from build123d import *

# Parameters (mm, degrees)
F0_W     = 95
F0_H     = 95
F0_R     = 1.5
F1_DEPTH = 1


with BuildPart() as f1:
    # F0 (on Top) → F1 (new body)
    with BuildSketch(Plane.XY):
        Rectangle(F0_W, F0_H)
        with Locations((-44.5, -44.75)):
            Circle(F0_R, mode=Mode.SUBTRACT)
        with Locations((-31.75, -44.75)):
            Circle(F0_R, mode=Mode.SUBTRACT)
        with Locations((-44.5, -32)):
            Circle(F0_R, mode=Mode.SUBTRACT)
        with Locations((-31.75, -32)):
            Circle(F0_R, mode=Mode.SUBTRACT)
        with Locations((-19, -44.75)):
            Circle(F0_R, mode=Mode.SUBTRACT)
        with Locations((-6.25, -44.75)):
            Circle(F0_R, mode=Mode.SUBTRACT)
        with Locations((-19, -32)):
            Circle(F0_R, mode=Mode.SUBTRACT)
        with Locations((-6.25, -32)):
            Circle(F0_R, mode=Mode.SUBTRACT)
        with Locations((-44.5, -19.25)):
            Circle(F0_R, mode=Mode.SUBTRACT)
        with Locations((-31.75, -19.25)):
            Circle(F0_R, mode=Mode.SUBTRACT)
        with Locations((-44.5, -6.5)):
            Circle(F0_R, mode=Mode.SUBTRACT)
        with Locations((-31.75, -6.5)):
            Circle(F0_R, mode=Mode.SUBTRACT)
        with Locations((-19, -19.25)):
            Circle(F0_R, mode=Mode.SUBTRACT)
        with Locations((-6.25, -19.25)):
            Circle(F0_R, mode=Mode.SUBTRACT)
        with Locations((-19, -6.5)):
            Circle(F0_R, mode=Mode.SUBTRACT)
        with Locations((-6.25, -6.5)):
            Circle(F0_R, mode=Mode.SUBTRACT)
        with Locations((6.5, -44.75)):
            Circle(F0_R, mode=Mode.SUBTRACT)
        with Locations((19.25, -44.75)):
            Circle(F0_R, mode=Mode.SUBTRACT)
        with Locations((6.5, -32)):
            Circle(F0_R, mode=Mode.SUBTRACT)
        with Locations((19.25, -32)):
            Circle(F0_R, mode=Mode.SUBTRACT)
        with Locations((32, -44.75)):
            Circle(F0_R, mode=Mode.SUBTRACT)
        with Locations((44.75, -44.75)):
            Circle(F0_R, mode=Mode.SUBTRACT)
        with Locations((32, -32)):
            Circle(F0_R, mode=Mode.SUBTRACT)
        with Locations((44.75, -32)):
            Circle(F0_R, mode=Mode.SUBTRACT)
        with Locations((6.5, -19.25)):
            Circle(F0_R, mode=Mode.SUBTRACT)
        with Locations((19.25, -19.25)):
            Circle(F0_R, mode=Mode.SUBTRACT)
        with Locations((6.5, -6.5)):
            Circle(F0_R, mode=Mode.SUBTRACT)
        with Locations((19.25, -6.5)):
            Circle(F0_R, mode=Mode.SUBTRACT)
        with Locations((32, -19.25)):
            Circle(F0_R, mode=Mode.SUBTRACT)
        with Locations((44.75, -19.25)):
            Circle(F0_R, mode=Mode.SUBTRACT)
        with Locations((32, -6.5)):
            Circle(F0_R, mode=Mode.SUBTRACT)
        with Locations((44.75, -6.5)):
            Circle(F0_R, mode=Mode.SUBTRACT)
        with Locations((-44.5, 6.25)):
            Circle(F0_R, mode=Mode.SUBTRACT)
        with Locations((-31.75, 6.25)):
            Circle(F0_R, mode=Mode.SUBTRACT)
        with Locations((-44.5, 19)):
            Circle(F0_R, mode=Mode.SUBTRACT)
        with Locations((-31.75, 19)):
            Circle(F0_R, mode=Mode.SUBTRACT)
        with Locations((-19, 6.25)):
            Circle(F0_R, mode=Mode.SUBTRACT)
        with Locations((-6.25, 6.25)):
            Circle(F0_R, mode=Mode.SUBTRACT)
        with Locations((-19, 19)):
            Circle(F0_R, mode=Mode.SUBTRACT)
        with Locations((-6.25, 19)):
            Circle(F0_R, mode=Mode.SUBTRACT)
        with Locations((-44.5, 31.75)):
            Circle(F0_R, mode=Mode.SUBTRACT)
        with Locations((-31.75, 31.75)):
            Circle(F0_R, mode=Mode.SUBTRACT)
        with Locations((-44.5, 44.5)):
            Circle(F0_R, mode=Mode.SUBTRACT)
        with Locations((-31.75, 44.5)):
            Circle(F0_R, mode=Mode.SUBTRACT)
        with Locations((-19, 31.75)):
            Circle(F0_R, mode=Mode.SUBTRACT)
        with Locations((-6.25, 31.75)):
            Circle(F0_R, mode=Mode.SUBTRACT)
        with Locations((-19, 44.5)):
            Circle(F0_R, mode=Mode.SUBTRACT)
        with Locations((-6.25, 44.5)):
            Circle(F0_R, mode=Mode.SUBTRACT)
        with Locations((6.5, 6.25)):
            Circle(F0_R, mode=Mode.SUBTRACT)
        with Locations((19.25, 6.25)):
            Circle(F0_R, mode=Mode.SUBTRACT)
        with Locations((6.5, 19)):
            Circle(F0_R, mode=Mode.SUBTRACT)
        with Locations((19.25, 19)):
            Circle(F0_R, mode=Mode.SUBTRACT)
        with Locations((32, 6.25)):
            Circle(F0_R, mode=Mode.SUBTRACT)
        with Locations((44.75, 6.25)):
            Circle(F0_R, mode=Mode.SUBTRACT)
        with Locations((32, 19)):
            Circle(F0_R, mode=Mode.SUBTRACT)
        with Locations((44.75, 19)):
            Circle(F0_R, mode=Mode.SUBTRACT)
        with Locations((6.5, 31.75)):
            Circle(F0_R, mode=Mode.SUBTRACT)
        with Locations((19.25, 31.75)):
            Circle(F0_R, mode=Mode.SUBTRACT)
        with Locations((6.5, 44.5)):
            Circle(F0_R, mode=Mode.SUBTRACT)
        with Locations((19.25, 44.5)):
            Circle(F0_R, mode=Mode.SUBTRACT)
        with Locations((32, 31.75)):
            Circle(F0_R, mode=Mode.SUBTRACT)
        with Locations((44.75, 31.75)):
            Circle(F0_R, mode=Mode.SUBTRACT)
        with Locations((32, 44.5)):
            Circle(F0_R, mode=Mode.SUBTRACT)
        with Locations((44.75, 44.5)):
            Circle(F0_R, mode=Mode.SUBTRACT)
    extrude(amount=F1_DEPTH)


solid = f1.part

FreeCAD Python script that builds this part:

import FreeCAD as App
import Part
import Sketcher
Q = App.Units.Quantity


def add_polygon(sketch, points):
    """Adds a closed chain of lines whose ends are joined by coincident constraints."""
    first, n = sketch.GeometryCount, len(points)
    for a, b in zip(points, points[1:] + points[:1]):
        sketch.addGeometry(Part.LineSegment(App.Vector(*a, 0), App.Vector(*b, 0)), False)
    for i in range(n):
        sketch.addConstraint(Sketcher.Constraint("Coincident", first + i, 2, first + (i + 1) % n, 1))

doc = App.newDocument("Part")
params = doc.addObject("Spreadsheet::Sheet", "Params")
for row, (alias, value) in enumerate([
    ("sketch1_diameter", "3 mm"),
    ("sketch1_width", "95 mm"),
    ("pad1_length", "1 mm"),
], start=1):
    params.set(f"A{row}", alias)
    params.set(f"B{row}", "=" + value)
    params.setAlias(f"B{row}", alias)

body = doc.addObject("PartDesign::Body", "Body")

sketch1 = doc.addObject("Sketcher::SketchObject", "Sketch")
body.addObject(sketch1)
sketch1.AttachmentSupport = (doc.XY_Plane, [""])
sketch1.MapMode = "FlatFace"
add_polygon(sketch1, [(-47.5, 47.5), (-47.5, -47.5), (47.5, -47.5), (47.5, 47.5)])
sketch1.addGeometry(Part.Circle(App.Vector(-44.5, -44.8, 0), App.Vector(0, 0, 1), 1.5), False)
sketch1.addGeometry(Part.Circle(App.Vector(-31.8, -44.8, 0), App.Vector(0, 0, 1), 1.5), False)
sketch1.addGeometry(Part.Circle(App.Vector(-44.5, -32, 0), App.Vector(0, 0, 1), 1.5), False)
sketch1.addGeometry(Part.Circle(App.Vector(-31.8, -32, 0), App.Vector(0, 0, 1), 1.5), False)
sketch1.addGeometry(Part.Circle(App.Vector(-19, -44.8, 0), App.Vector(0, 0, 1), 1.5), False)
sketch1.addGeometry(Part.Circle(App.Vector(-6.2, -44.8, 0), App.Vector(0, 0, 1), 1.5), False)
sketch1.addGeometry(Part.Circle(App.Vector(-19, -32, 0), App.Vector(0, 0, 1), 1.5), False)
sketch1.addGeometry(Part.Circle(App.Vector(-6.2, -32, 0), App.Vector(0, 0, 1), 1.5), False)
sketch1.addGeometry(Part.Circle(App.Vector(-44.5, -19.2, 0), App.Vector(0, 0, 1), 1.5), False)
sketch1.addGeometry(Part.Circle(App.Vector(-31.8, -19.2, 0), App.Vector(0, 0, 1), 1.5), False)
sketch1.addGeometry(Part.Circle(App.Vector(-44.5, -6.5, 0), App.Vector(0, 0, 1), 1.5), False)
sketch1.addGeometry(Part.Circle(App.Vector(-31.8, -6.5, 0), App.Vector(0, 0, 1), 1.5), False)
sketch1.addGeometry(Part.Circle(App.Vector(-19, -19.2, 0), App.Vector(0, 0, 1), 1.5), False)
sketch1.addGeometry(Part.Circle(App.Vector(-6.2, -19.2, 0), App.Vector(0, 0, 1), 1.5), False)
sketch1.addGeometry(Part.Circle(App.Vector(-19, -6.5, 0), App.Vector(0, 0, 1), 1.5), False)
sketch1.addGeometry(Part.Circle(App.Vector(-6.2, -6.5, 0), App.Vector(0, 0, 1), 1.5), False)
sketch1.addGeometry(Part.Circle(App.Vector(6.5, -44.8, 0), App.Vector(0, 0, 1), 1.5), False)
sketch1.addGeometry(Part.Circle(App.Vector(19.2, -44.8, 0), App.Vector(0, 0, 1), 1.5), False)
sketch1.addGeometry(Part.Circle(App.Vector(6.5, -32, 0), App.Vector(0, 0, 1), 1.5), False)
sketch1.addGeometry(Part.Circle(App.Vector(19.2, -32, 0), App.Vector(0, 0, 1), 1.5), False)
sketch1.addGeometry(Part.Circle(App.Vector(32, -44.8, 0), App.Vector(0, 0, 1), 1.5), False)
sketch1.addGeometry(Part.Circle(App.Vector(44.8, -44.8, 0), App.Vector(0, 0, 1), 1.5), False)
sketch1.addGeometry(Part.Circle(App.Vector(32, -32, 0), App.Vector(0, 0, 1), 1.5), False)
sketch1.addGeometry(Part.Circle(App.Vector(44.8, -32, 0), App.Vector(0, 0, 1), 1.5), False)
sketch1.addGeometry(Part.Circle(App.Vector(6.5, -19.2, 0), App.Vector(0, 0, 1), 1.5), False)
sketch1.addGeometry(Part.Circle(App.Vector(19.2, -19.2, 0), App.Vector(0, 0, 1), 1.5), False)
sketch1.addGeometry(Part.Circle(App.Vector(6.5, -6.5, 0), App.Vector(0, 0, 1), 1.5), False)
sketch1.addGeometry(Part.Circle(App.Vector(19.2, -6.5, 0), App.Vector(0, 0, 1), 1.5), False)
sketch1.addGeometry(Part.Circle(App.Vector(32, -19.2, 0), App.Vector(0, 0, 1), 1.5), False)
sketch1.addGeometry(Part.Circle(App.Vector(44.8, -19.2, 0), App.Vector(0, 0, 1), 1.5), False)
sketch1.addGeometry(Part.Circle(App.Vector(32, -6.5, 0), App.Vector(0, 0, 1), 1.5), False)
sketch1.addGeometry(Part.Circle(App.Vector(44.8, -6.5, 0), App.Vector(0, 0, 1), 1.5), False)
sketch1.addGeometry(Part.Circle(App.Vector(-44.5, 6.2, 0), App.Vector(0, 0, 1), 1.5), False)
sketch1.addGeometry(Part.Circle(App.Vector(-31.8, 6.2, 0), App.Vector(0, 0, 1), 1.5), False)
sketch1.addGeometry(Part.Circle(App.Vector(-44.5, 19, 0), App.Vector(0, 0, 1), 1.5), False)
sketch1.addGeometry(Part.Circle(App.Vector(-31.8, 19, 0), App.Vector(0, 0, 1), 1.5), False)
sketch1.addGeometry(Part.Circle(App.Vector(-19, 6.2, 0), App.Vector(0, 0, 1), 1.5), False)
sketch1.addGeometry(Part.Circle(App.Vector(-6.2, 6.2, 0), App.Vector(0, 0, 1), 1.5), False)
sketch1.addGeometry(Part.Circle(App.Vector(-19, 19, 0), App.Vector(0, 0, 1), 1.5), False)
sketch1.addGeometry(Part.Circle(App.Vector(-6.2, 19, 0), App.Vector(0, 0, 1), 1.5), False)
sketch1.addGeometry(Part.Circle(App.Vector(-44.5, 31.8, 0), App.Vector(0, 0, 1), 1.5), False)
sketch1.addGeometry(Part.Circle(App.Vector(-31.8, 31.8, 0), App.Vector(0, 0, 1), 1.5), False)
sketch1.addGeometry(Part.Circle(App.Vector(-44.5, 44.5, 0), App.Vector(0, 0, 1), 1.5), False)
sketch1.addGeometry(Part.Circle(App.Vector(-31.8, 44.5, 0), App.Vector(0, 0, 1), 1.5), False)
sketch1.addGeometry(Part.Circle(App.Vector(-19, 31.8, 0), App.Vector(0, 0, 1), 1.5), False)
sketch1.addGeometry(Part.Circle(App.Vector(-6.2, 31.8, 0), App.Vector(0, 0, 1), 1.5), False)
sketch1.addGeometry(Part.Circle(App.Vector(-19, 44.5, 0), App.Vector(0, 0, 1), 1.5), False)
sketch1.addGeometry(Part.Circle(App.Vector(-6.2, 44.5, 0), App.Vector(0, 0, 1), 1.5), False)
sketch1.addGeometry(Part.Circle(App.Vector(6.5, 6.2, 0), App.Vector(0, 0, 1), 1.5), False)
sketch1.addGeometry(Part.Circle(App.Vector(19.2, 6.2, 0), App.Vector(0, 0, 1), 1.5), False)
sketch1.addGeometry(Part.Circle(App.Vector(6.5, 19, 0), App.Vector(0, 0, 1), 1.5), False)
sketch1.addGeometry(Part.Circle(App.Vector(19.2, 19, 0), App.Vector(0, 0, 1), 1.5), False)
sketch1.addGeometry(Part.Circle(App.Vector(32, 6.2, 0), App.Vector(0, 0, 1), 1.5), False)
sketch1.addGeometry(Part.Circle(App.Vector(44.8, 6.2, 0), App.Vector(0, 0, 1), 1.5), False)
sketch1.addGeometry(Part.Circle(App.Vector(32, 19, 0), App.Vector(0, 0, 1), 1.5), False)
sketch1.addGeometry(Part.Circle(App.Vector(44.8, 19, 0), App.Vector(0, 0, 1), 1.5), False)
sketch1.addGeometry(Part.Circle(App.Vector(6.5, 31.8, 0), App.Vector(0, 0, 1), 1.5), False)
sketch1.addGeometry(Part.Circle(App.Vector(19.2, 31.8, 0), App.Vector(0, 0, 1), 1.5), False)
sketch1.addGeometry(Part.Circle(App.Vector(6.5, 44.5, 0), App.Vector(0, 0, 1), 1.5), False)
sketch1.addGeometry(Part.Circle(App.Vector(19.2, 44.5, 0), App.Vector(0, 0, 1), 1.5), False)
sketch1.addGeometry(Part.Circle(App.Vector(32, 31.8, 0), App.Vector(0, 0, 1), 1.5), False)
sketch1.addGeometry(Part.Circle(App.Vector(44.8, 31.8, 0), App.Vector(0, 0, 1), 1.5), False)
sketch1.addGeometry(Part.Circle(App.Vector(32, 44.5, 0), App.Vector(0, 0, 1), 1.5), False)
sketch1.addGeometry(Part.Circle(App.Vector(44.8, 44.5, 0), App.Vector(0, 0, 1), 1.5), False)
sketch1.addConstraint(Sketcher.Constraint("Vertical", 0))
sketch1.addConstraint(Sketcher.Constraint("Horizontal", 1))
sketch1.addConstraint(Sketcher.Constraint("Vertical", 2))
sketch1.addConstraint(Sketcher.Constraint("Horizontal", 3))
sketch1.addConstraint(Sketcher.Constraint("Equal", 4, 5))
sketch1.addConstraint(Sketcher.Constraint("Equal", 5, 6))
sketch1.addConstraint(Sketcher.Constraint("Equal", 6, 7))
sketch1.addConstraint(Sketcher.Constraint("Equal", 7, 8))
sketch1.addConstraint(Sketcher.Constraint("Equal", 8, 9))
sketch1.addConstraint(Sketcher.Constraint("Equal", 9, 10))
sketch1.addConstraint(Sketcher.Constraint("Equal", 10, 11))
sketch1.addConstraint(Sketcher.Constraint("Equal", 11, 12))
sketch1.addConstraint(Sketcher.Constraint("Equal", 12, 13))
sketch1.addConstraint(Sketcher.Constraint("Equal", 13, 14))
sketch1.addConstraint(Sketcher.Constraint("Equal", 14, 15))
sketch1.addConstraint(Sketcher.Constraint("Equal", 15, 16))
sketch1.addConstraint(Sketcher.Constraint("Equal", 16, 17))
sketch1.addConstraint(Sketcher.Constraint("Equal", 17, 18))
sketch1.addConstraint(Sketcher.Constraint("Equal", 18, 19))
sketch1.addConstraint(Sketcher.Constraint("Equal", 19, 20))
sketch1.addConstraint(Sketcher.Constraint("Equal", 20, 21))
sketch1.addConstraint(Sketcher.Constraint("Equal", 21, 22))
sketch1.addConstraint(Sketcher.Constraint("Equal", 22, 23))
sketch1.addConstraint(Sketcher.Constraint("Equal", 23, 24))
sketch1.addConstraint(Sketcher.Constraint("Equal", 24, 25))
sketch1.addConstraint(Sketcher.Constraint("Equal", 25, 26))
sketch1.addConstraint(Sketcher.Constraint("Equal", 26, 27))
sketch1.addConstraint(Sketcher.Constraint("Equal", 27, 28))
sketch1.addConstraint(Sketcher.Constraint("Equal", 28, 29))
sketch1.addConstraint(Sketcher.Constraint("Equal", 29, 30))
sketch1.addConstraint(Sketcher.Constraint("Equal", 30, 31))
sketch1.addConstraint(Sketcher.Constraint("Equal", 31, 32))
sketch1.addConstraint(Sketcher.Constraint("Equal", 32, 33))
sketch1.addConstraint(Sketcher.Constraint("Equal", 33, 34))
sketch1.addConstraint(Sketcher.Constraint("Equal", 34, 35))
sketch1.addConstraint(Sketcher.Constraint("Equal", 35, 36))
sketch1.addConstraint(Sketcher.Constraint("Equal", 36, 37))
sketch1.addConstraint(Sketcher.Constraint("Equal", 37, 38))
sketch1.addConstraint(Sketcher.Constraint("Equal", 38, 39))
sketch1.addConstraint(Sketcher.Constraint("Equal", 39, 40))
sketch1.addConstraint(Sketcher.Constraint("Equal", 40, 41))
sketch1.addConstraint(Sketcher.Constraint("Equal", 41, 42))
sketch1.addConstraint(Sketcher.Constraint("Equal", 42, 43))
sketch1.addConstraint(Sketcher.Constraint("Equal", 43, 44))
sketch1.addConstraint(Sketcher.Constraint("Equal", 44, 45))
sketch1.addConstraint(Sketcher.Constraint("Equal", 45, 46))
sketch1.addConstraint(Sketcher.Constraint("Equal", 46, 47))
sketch1.addConstraint(Sketcher.Constraint("Equal", 47, 48))
sketch1.addConstraint(Sketcher.Constraint("Equal", 48, 49))
sketch1.addConstraint(Sketcher.Constraint("Equal", 49, 50))
sketch1.addConstraint(Sketcher.Constraint("Equal", 50, 51))
sketch1.addConstraint(Sketcher.Constraint("Equal", 51, 52))
sketch1.addConstraint(Sketcher.Constraint("Equal", 52, 53))
sketch1.addConstraint(Sketcher.Constraint("Equal", 53, 54))
sketch1.addConstraint(Sketcher.Constraint("Equal", 54, 55))
sketch1.addConstraint(Sketcher.Constraint("Equal", 55, 56))
sketch1.addConstraint(Sketcher.Constraint("Equal", 56, 57))
sketch1.addConstraint(Sketcher.Constraint("Equal", 57, 58))
sketch1.addConstraint(Sketcher.Constraint("Equal", 58, 59))
sketch1.addConstraint(Sketcher.Constraint("Equal", 59, 60))
sketch1.addConstraint(Sketcher.Constraint("Equal", 60, 61))
sketch1.addConstraint(Sketcher.Constraint("Equal", 61, 62))
sketch1.addConstraint(Sketcher.Constraint("Equal", 62, 63))
sketch1.addConstraint(Sketcher.Constraint("Equal", 63, 64))
sketch1.addConstraint(Sketcher.Constraint("Equal", 64, 65))
sketch1.addConstraint(Sketcher.Constraint("Equal", 65, 66))
sketch1.addConstraint(Sketcher.Constraint("Equal", 66, 67))
sketch1.addConstraint(Sketcher.Constraint("Symmetric", 0, 2, 2, 2, -1, 1))
sketch1.addConstraint(Sketcher.Constraint("Horizontal", 4, 3, 5, 3))
sketch1.addConstraint(Sketcher.Constraint("Horizontal", 6, 3, 7, 3))
sketch1.addConstraint(Sketcher.Constraint("Horizontal", 5, 3, 8, 3))
sketch1.addConstraint(Sketcher.Constraint("Horizontal", 8, 3, 9, 3))
sketch1.addConstraint(Sketcher.Constraint("Horizontal", 7, 3, 10, 3))
sketch1.addConstraint(Sketcher.Constraint("Horizontal", 10, 3, 11, 3))
sketch1.addConstraint(Sketcher.Constraint("Horizontal", 12, 3, 13, 3))
sketch1.addConstraint(Sketcher.Constraint("Horizontal", 14, 3, 15, 3))
sketch1.addConstraint(Sketcher.Constraint("Horizontal", 13, 3, 16, 3))
sketch1.addConstraint(Sketcher.Constraint("Horizontal", 16, 3, 17, 3))
sketch1.addConstraint(Sketcher.Constraint("Horizontal", 15, 3, 18, 3))
sketch1.addConstraint(Sketcher.Constraint("Horizontal", 18, 3, 19, 3))
sketch1.addConstraint(Sketcher.Constraint("Horizontal", 9, 3, 20, 3))
sketch1.addConstraint(Sketcher.Constraint("Horizontal", 20, 3, 21, 3))
sketch1.addConstraint(Sketcher.Constraint("Horizontal", 11, 3, 22, 3))
sketch1.addConstraint(Sketcher.Constraint("Horizontal", 22, 3, 23, 3))
sketch1.addConstraint(Sketcher.Constraint("Horizontal", 21, 3, 24, 3))
sketch1.addConstraint(Sketcher.Constraint("Horizontal", 24, 3, 25, 3))
sketch1.addConstraint(Sketcher.Constraint("Horizontal", 23, 3, 26, 3))
sketch1.addConstraint(Sketcher.Constraint("Horizontal", 26, 3, 27, 3))
sketch1.addConstraint(Sketcher.Constraint("Horizontal", 17, 3, 28, 3))
sketch1.addConstraint(Sketcher.Constraint("Horizontal", 28, 3, 29, 3))
sketch1.addConstraint(Sketcher.Constraint("Horizontal", 19, 3, 30, 3))
sketch1.addConstraint(Sketcher.Constraint("Horizontal", 30, 3, 31, 3))
sketch1.addConstraint(Sketcher.Constraint("Horizontal", 29, 3, 32, 3))
sketch1.addConstraint(Sketcher.Constraint("Horizontal", 32, 3, 33, 3))
sketch1.addConstraint(Sketcher.Constraint("Horizontal", 31, 3, 34, 3))
sketch1.addConstraint(Sketcher.Constraint("Horizontal", 34, 3, 35, 3))
sketch1.addConstraint(Sketcher.Constraint("Horizontal", 36, 3, 37, 3))
sketch1.addConstraint(Sketcher.Constraint("Horizontal", 38, 3, 39, 3))
sketch1.addConstraint(Sketcher.Constraint("Horizontal", 37, 3, 40, 3))
sketch1.addConstraint(Sketcher.Constraint("Horizontal", 40, 3, 41, 3))
sketch1.addConstraint(Sketcher.Constraint("Horizontal", 39, 3, 42, 3))
sketch1.addConstraint(Sketcher.Constraint("Horizontal", 42, 3, 43, 3))
sketch1.addConstraint(Sketcher.Constraint("Horizontal", 44, 3, 45, 3))
sketch1.addConstraint(Sketcher.Constraint("Horizontal", 46, 3, 47, 3))
sketch1.addConstraint(Sketcher.Constraint("Horizontal", 45, 3, 48, 3))
sketch1.addConstraint(Sketcher.Constraint("Horizontal", 48, 3, 49, 3))
sketch1.addConstraint(Sketcher.Constraint("Horizontal", 47, 3, 50, 3))
sketch1.addConstraint(Sketcher.Constraint("Horizontal", 50, 3, 51, 3))
sketch1.addConstraint(Sketcher.Constraint("Horizontal", 41, 3, 52, 3))
sketch1.addConstraint(Sketcher.Constraint("Horizontal", 52, 3, 53, 3))
sketch1.addConstraint(Sketcher.Constraint("Horizontal", 43, 3, 54, 3))
sketch1.addConstraint(Sketcher.Constraint("Horizontal", 54, 3, 55, 3))
sketch1.addConstraint(Sketcher.Constraint("Horizontal", 53, 3, 56, 3))
sketch1.addConstraint(Sketcher.Constraint("Horizontal", 56, 3, 57, 3))
sketch1.addConstraint(Sketcher.Constraint("Horizontal", 55, 3, 58, 3))
sketch1.addConstraint(Sketcher.Constraint("Horizontal", 58, 3, 59, 3))
sketch1.addConstraint(Sketcher.Constraint("Horizontal", 49, 3, 60, 3))
sketch1.addConstraint(Sketcher.Constraint("Horizontal", 60, 3, 61, 3))
sketch1.addConstraint(Sketcher.Constraint("Horizontal", 51, 3, 62, 3))
sketch1.addConstraint(Sketcher.Constraint("Horizontal", 62, 3, 63, 3))
sketch1.addConstraint(Sketcher.Constraint("Horizontal", 61, 3, 64, 3))
sketch1.addConstraint(Sketcher.Constraint("Horizontal", 64, 3, 65, 3))
sketch1.addConstraint(Sketcher.Constraint("Horizontal", 63, 3, 66, 3))
sketch1.addConstraint(Sketcher.Constraint("Horizontal", 66, 3, 67, 3))
sketch1.addConstraint(Sketcher.Constraint("Vertical", 4, 3, 6, 3))
sketch1.addConstraint(Sketcher.Constraint("Vertical", 5, 3, 7, 3))
sketch1.addConstraint(Sketcher.Constraint("Vertical", 8, 3, 10, 3))
sketch1.addConstraint(Sketcher.Constraint("Vertical", 9, 3, 11, 3))
sketch1.addConstraint(Sketcher.Constraint("Vertical", 6, 3, 12, 3))
sketch1.addConstraint(Sketcher.Constraint("Vertical", 7, 3, 13, 3))
sketch1.addConstraint(Sketcher.Constraint("Vertical", 12, 3, 14, 3))
sketch1.addConstraint(Sketcher.Constraint("Vertical", 13, 3, 15, 3))
sketch1.addConstraint(Sketcher.Constraint("Vertical", 10, 3, 16, 3))
sketch1.addConstraint(Sketcher.Constraint("Vertical", 11, 3, 17, 3))
sketch1.addConstraint(Sketcher.Constraint("Vertical", 16, 3, 18, 3))
sketch1.addConstraint(Sketcher.Constraint("Vertical", 17, 3, 19, 3))
sketch1.addConstraint(Sketcher.Constraint("Vertical", 20, 3, 22, 3))
sketch1.addConstraint(Sketcher.Constraint("Vertical", 21, 3, 23, 3))
sketch1.addConstraint(Sketcher.Constraint("Vertical", 24, 3, 26, 3))
sketch1.addConstraint(Sketcher.Constraint("Vertical", 25, 3, 27, 3))
sketch1.addConstraint(Sketcher.Constraint("Vertical", 22, 3, 28, 3))
sketch1.addConstraint(Sketcher.Constraint("Vertical", 23, 3, 29, 3))
sketch1.addConstraint(Sketcher.Constraint("Vertical", 28, 3, 30, 3))
sketch1.addConstraint(Sketcher.Constraint("Vertical", 29, 3, 31, 3))
sketch1.addConstraint(Sketcher.Constraint("Vertical", 26, 3, 32, 3))
sketch1.addConstraint(Sketcher.Constraint("Vertical", 27, 3, 33, 3))
sketch1.addConstraint(Sketcher.Constraint("Vertical", 32, 3, 34, 3))
sketch1.addConstraint(Sketcher.Constraint("Vertical", 33, 3, 35, 3))
sketch1.addConstraint(Sketcher.Constraint("Vertical", 14, 3, 36, 3))
sketch1.addConstraint(Sketcher.Constraint("Vertical", 15, 3, 37, 3))
sketch1.addConstraint(Sketcher.Constraint("Vertical", 36, 3, 38, 3))
sketch1.addConstraint(Sketcher.Constraint("Vertical", 37, 3, 39, 3))
sketch1.addConstraint(Sketcher.Constraint("Vertical", 18, 3, 40, 3))
sketch1.addConstraint(Sketcher.Constraint("Vertical", 19, 3, 41, 3))
sketch1.addConstraint(Sketcher.Constraint("Vertical", 40, 3, 42, 3))
sketch1.addConstraint(Sketcher.Constraint("Vertical", 41, 3, 43, 3))
sketch1.addConstraint(Sketcher.Constraint("Vertical", 38, 3, 44, 3))
sketch1.addConstraint(Sketcher.Constraint("Vertical", 39, 3, 45, 3))
sketch1.addConstraint(Sketcher.Constraint("Vertical", 44, 3, 46, 3))
sketch1.addConstraint(Sketcher.Constraint("Vertical", 45, 3, 47, 3))
sketch1.addConstraint(Sketcher.Constraint("Vertical", 42, 3, 48, 3))
sketch1.addConstraint(Sketcher.Constraint("Vertical", 43, 3, 49, 3))
sketch1.addConstraint(Sketcher.Constraint("Vertical", 48, 3, 50, 3))
sketch1.addConstraint(Sketcher.Constraint("Vertical", 49, 3, 51, 3))
sketch1.addConstraint(Sketcher.Constraint("Vertical", 30, 3, 52, 3))
sketch1.addConstraint(Sketcher.Constraint("Vertical", 31, 3, 53, 3))
sketch1.addConstraint(Sketcher.Constraint("Vertical", 52, 3, 54, 3))
sketch1.addConstraint(Sketcher.Constraint("Vertical", 53, 3, 55, 3))
sketch1.addConstraint(Sketcher.Constraint("Vertical", 34, 3, 56, 3))
sketch1.addConstraint(Sketcher.Constraint("Vertical", 35, 3, 57, 3))
sketch1.addConstraint(Sketcher.Constraint("Vertical", 56, 3, 58, 3))
sketch1.addConstraint(Sketcher.Constraint("Vertical", 57, 3, 59, 3))
sketch1.addConstraint(Sketcher.Constraint("Vertical", 54, 3, 60, 3))
sketch1.addConstraint(Sketcher.Constraint("Vertical", 55, 3, 61, 3))
sketch1.addConstraint(Sketcher.Constraint("Vertical", 60, 3, 62, 3))
sketch1.addConstraint(Sketcher.Constraint("Vertical", 61, 3, 63, 3))
sketch1.addConstraint(Sketcher.Constraint("Vertical", 58, 3, 64, 3))
sketch1.addConstraint(Sketcher.Constraint("Vertical", 59, 3, 65, 3))
sketch1.addConstraint(Sketcher.Constraint("Vertical", 64, 3, 66, 3))
sketch1.addConstraint(Sketcher.Constraint("Vertical", 65, 3, 67, 3))
sketch1.addConstraint(Sketcher.Constraint("Equal", 3, 0))
sketch1.addConstraint(Sketcher.Constraint("Diameter", 4, Q("3 mm")))
sketch1.addConstraint(Sketcher.Constraint("DistanceX", 1, 1, 1, 2, Q("95 mm")))
sketch1.addConstraint(Sketcher.Constraint("DistanceY", 6, 3, -1, 1, Q("32 mm")))
sketch1.addConstraint(Sketcher.Constraint("DistanceX", 8, 3, -1, 1, Q("19 mm")))
sketch1.addConstraint(Sketcher.Constraint("DistanceX", -1, 1, 24, 3, Q("32 mm")))
sketch1.addConstraint(Sketcher.Constraint("DistanceY", -1, 1, 38, 3, Q("19 mm")))
sketch1.addConstraint(Sketcher.Constraint("DistanceX", 4, 3, -1, 1, Q("44.5 mm")))
sketch1.addConstraint(Sketcher.Constraint("DistanceY", 14, 3, -1, 1, Q("6.5 mm")))
sketch1.addConstraint(Sketcher.Constraint("DistanceX", -1, 1, 20, 3, Q("6.5 mm")))
sketch1.addConstraint(Sketcher.Constraint("DistanceY", -1, 1, 46, 3, Q("44.5 mm")))
sketch1.addConstraint(Sketcher.Constraint("DistanceY", 4, 3, -1, 1, Q("44.75 mm")))
sketch1.addConstraint(Sketcher.Constraint("DistanceX", 5, 3, -1, 1, Q("31.75 mm")))
sketch1.addConstraint(Sketcher.Constraint("DistanceX", 9, 3, -1, 1, Q("6.25 mm")))
sketch1.addConstraint(Sketcher.Constraint("DistanceY", 12, 3, -1, 1, Q("19.25 mm")))
sketch1.addConstraint(Sketcher.Constraint("DistanceX", -1, 1, 21, 3, Q("19.25 mm")))
sketch1.addConstraint(Sketcher.Constraint("DistanceX", -1, 1, 25, 3, Q("44.75 mm")))
sketch1.addConstraint(Sketcher.Constraint("DistanceY", -1, 1, 36, 3, Q("6.25 mm")))
sketch1.addConstraint(Sketcher.Constraint("DistanceY", -1, 1, 44, 3, Q("31.75 mm")))
sketch1.setExpression("Constraints[185]", "Params.sketch1_diameter")
sketch1.setExpression("Constraints[186]", "Params.sketch1_width")
pad1 = doc.addObject("PartDesign::Pad", "Pad")
body.addObject(pad1)
pad1.Profile = sketch1
pad1.setExpression("Length", "Params.pad1_length")

doc.recompute()
